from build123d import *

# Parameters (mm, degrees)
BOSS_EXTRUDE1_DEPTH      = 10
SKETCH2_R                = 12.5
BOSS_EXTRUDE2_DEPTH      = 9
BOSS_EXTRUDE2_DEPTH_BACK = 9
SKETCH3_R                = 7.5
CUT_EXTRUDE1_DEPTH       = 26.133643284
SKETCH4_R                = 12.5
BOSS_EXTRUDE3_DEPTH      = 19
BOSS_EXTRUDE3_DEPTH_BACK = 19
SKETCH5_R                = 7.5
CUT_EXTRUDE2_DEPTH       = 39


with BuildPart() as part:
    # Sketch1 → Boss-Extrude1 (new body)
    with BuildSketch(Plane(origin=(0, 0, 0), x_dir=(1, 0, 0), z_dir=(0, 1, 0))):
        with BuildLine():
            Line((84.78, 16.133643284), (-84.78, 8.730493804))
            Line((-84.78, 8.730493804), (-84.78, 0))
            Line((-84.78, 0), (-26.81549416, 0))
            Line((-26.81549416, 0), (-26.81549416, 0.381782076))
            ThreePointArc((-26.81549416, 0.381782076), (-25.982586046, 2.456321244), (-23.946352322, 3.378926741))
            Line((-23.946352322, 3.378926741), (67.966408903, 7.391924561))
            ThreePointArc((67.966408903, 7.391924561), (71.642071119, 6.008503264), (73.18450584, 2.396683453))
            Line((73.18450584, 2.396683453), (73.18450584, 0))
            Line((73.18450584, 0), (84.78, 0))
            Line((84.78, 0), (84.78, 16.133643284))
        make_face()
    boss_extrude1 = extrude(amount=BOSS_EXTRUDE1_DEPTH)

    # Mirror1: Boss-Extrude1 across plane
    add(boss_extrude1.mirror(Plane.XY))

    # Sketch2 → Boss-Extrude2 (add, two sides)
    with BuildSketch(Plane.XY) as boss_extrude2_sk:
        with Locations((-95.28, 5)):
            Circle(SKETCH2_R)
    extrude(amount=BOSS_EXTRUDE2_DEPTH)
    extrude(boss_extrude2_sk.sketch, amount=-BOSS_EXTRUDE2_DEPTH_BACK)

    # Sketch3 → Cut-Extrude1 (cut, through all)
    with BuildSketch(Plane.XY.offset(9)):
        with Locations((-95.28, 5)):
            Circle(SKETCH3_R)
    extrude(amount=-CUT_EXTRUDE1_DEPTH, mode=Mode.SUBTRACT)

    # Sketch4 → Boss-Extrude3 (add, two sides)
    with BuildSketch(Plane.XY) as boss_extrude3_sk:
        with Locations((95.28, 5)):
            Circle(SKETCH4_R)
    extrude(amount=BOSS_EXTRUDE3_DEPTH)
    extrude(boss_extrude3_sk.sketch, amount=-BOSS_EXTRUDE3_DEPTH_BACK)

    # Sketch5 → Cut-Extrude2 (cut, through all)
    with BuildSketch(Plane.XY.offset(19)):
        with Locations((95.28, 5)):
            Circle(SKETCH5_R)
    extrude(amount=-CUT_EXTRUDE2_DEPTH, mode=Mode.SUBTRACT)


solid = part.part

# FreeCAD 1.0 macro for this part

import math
import FreeCAD as App
import Part
import Sketcher

V = App.Vector
Q = App.Units.Quantity

doc = App.newDocument("Part")
body = doc.addObject("PartDesign::Body", "Body")

sketch1 = body.newObject("Sketcher::SketchObject", "Sketch")
sketch1.AttachmentSupport = (doc.getObject("XZ_Plane"), [""])
sketch1.MapMode = "FlatFace"
sketch1.addGeometry([
    Part.LineSegment(V(84.78, -16.133643, 0), V(-84.78, -8.730494, 0)),
    Part.LineSegment(V(-84.78, -8.730494, 0), V(-84.78, 0, 0)),
    Part.LineSegment(V(-84.78, 0, 0), V(-26.815494, 0, 0)),
    Part.LineSegment(V(-26.815494, 0, 0), V(-26.815494, -0.381782, 0)),
    Part.ArcOfCircle(Part.Circle(V(-23.815494, -0.381782, 0), V(0, 0, 1), 3), math.radians(180), math.radians(267.5)),
    Part.LineSegment(V(-23.946352, -3.378927, 0), V(67.966409, -7.391925, 0)),
    Part.ArcOfCircle(Part.Circle(V(68.184506, -2.396683, 0), V(0, 0, 1), 5), math.radians(-92.5), math.radians(0)),
    Part.LineSegment(V(73.184506, -2.396683, 0), V(73.184506, 0, 0)),
    Part.LineSegment(V(73.184506, 0, 0), V(84.78, 0, 0)),
    Part.LineSegment(V(84.78, 0, 0), V(84.78, -16.133643, 0)),
], False)
sketch1.addConstraint([
    Sketcher.Constraint("Coincident", 0, 2, 1, 1),
    Sketcher.Constraint("Coincident", 1, 2, 2, 1),
    Sketcher.Constraint("Coincident", 2, 2, 3, 1),
    Sketcher.Constraint("Tangent", 3, 2, 4, 1),
    Sketcher.Constraint("Tangent", 4, 2, 5, 1),
    Sketcher.Constraint("Tangent", 5, 2, 6, 1),
    Sketcher.Constraint("Tangent", 6, 2, 7, 1),
    Sketcher.Constraint("Coincident", 7, 2, 8, 1),
    Sketcher.Constraint("Coincident", 8, 2, 9, 1),
    Sketcher.Constraint("Coincident", 9, 2, 0, 1),
    Sketcher.Constraint("Vertical", 1),
    Sketcher.Constraint("Horizontal", 2),
    Sketcher.Constraint("Vertical", 3),
    Sketcher.Constraint("Vertical", 7),
    Sketcher.Constraint("Horizontal", 8),
    Sketcher.Constraint("Vertical", 9),
    Sketcher.Constraint("Symmetric", 1, 2, 8, 2, -1, 1),
    Sketcher.Constraint("PointOnObject", 1, 2, -1),
    Sketcher.Constraint("Parallel", 0, 5),
    Sketcher.Constraint("Radius", 4, 3.0),
    Sketcher.Constraint("Radius", 6, 5.0),
    Sketcher.Constraint("Angle", 0, Q("177.5 deg")),
    Sketcher.Constraint("DistanceX", 4, 3, 6, 3, 92.0),
    Sketcher.Constraint("DistanceX", 0, 2, -1, 1, 84.78),
    Sketcher.Constraint("DistanceX", 2, 1, 2, 2, 57.964506),
    Sketcher.Constraint("DistanceY", 1, 1, 1, 2, 8.730494),
    Sketcher.Constraint("DistanceY", 3, 2, 3, 1, 0.381782),
])
pad1 = body.newObject("PartDesign::Pad", "Pad")
pad1.Profile = sketch1
pad1.Length = 10
pad1.Reversed = True
doc.recompute()

mirrored = body.newObject("PartDesign::Mirrored", "Mirrored")
mirrored.Originals = [pad1]
mirrored.MirrorPlane = (doc.getObject("XY_Plane"), [""])
body.Tip = mirrored

sketch2 = body.newObject("Sketcher::SketchObject", "Sketch001")
sketch2.AttachmentSupport = (doc.getObject("XY_Plane"), [""])
sketch2.MapMode = "FlatFace"
sketch2.addGeometry(Part.Circle(V(-95.28, 5, 0), V(0, 0, 1), 12.5), False)
sketch2.addConstraint([
    Sketcher.Constraint("Diameter", 0, 25.0),
    Sketcher.Constraint("DistanceY", -1, 1, 0, 3, 5.0),
    Sketcher.Constraint("DistanceX", 0, 3, -1, 1, 95.28),
])
pad2 = body.newObject("PartDesign::Pad", "Pad001")
pad2.Profile = sketch2
pad2.Type = "TwoLengths"
pad2.Length = 9
pad2.Length2 = 9

sketch3 = body.newObject("Sketcher::SketchObject", "Sketch002")
sketch3.AttachmentSupport = (doc.getObject("XY_Plane"), [""])
sketch3.MapMode = "FlatFace"
sketch3.AttachmentOffset = App.Placement(V(0, 0, 9), App.Rotation())
sketch3.addGeometry(Part.Circle(V(-95.28, 5, 0), V(0, 0, 1), 7.5), False)
sketch3.addConstraint([
    Sketcher.Constraint("Diameter", 0, 15.0),
    Sketcher.Constraint("DistanceY", -1, 1, 0, 3, 5.0),
    Sketcher.Constraint("DistanceX", 0, 3, -1, 1, 95.28),
])
pocket1 = body.newObject("PartDesign::Pocket", "Pocket")
pocket1.Profile = sketch3
pocket1.Type = "ThroughAll"

sketch4 = body.newObject("Sketcher::SketchObject", "Sketch003")
sketch4.AttachmentSupport = (doc.getObject("XY_Plane"), [""])
sketch4.MapMode = "FlatFace"
sketch4.addGeometry(Part.Circle(V(95.28, 5, 0), V(0, 0, 1), 12.5), False)
sketch4.addConstraint([
    Sketcher.Constraint("Diameter", 0, 25.0),
    Sketcher.Constraint("DistanceY", -1, 1, 0, 3, 5.0),
    Sketcher.Constraint("DistanceX", -1, 1, 0, 3, 95.28),
])
pad3 = body.newObject("PartDesign::Pad", "Pad002")
pad3.Profile = sketch4
pad3.Type = "TwoLengths"
pad3.Length = 19
pad3.Length2 = 19

sketch5 = body.newObject("Sketcher::SketchObject", "Sketch004")
sketch5.AttachmentSupport = (doc.getObject("XY_Plane"), [""])
sketch5.MapMode = "FlatFace"
sketch5.AttachmentOffset = App.Placement(V(0, 0, 19), App.Rotation())
sketch5.addGeometry(Part.Circle(V(95.28, 5, 0), V(0, 0, 1), 7.5), False)
sketch5.addConstraint([
    Sketcher.Constraint("Diameter", 0, 15.0),
    Sketcher.Constraint("DistanceY", -1, 1, 0, 3, 5.0),
    Sketcher.Constraint("DistanceX", -1, 1, 0, 3, 95.28),
])
pocket2 = body.newObject("PartDesign::Pocket", "Pocket001")
pocket2.Profile = sketch5
pocket2.Type = "ThroughAll"

doc.recompute()
